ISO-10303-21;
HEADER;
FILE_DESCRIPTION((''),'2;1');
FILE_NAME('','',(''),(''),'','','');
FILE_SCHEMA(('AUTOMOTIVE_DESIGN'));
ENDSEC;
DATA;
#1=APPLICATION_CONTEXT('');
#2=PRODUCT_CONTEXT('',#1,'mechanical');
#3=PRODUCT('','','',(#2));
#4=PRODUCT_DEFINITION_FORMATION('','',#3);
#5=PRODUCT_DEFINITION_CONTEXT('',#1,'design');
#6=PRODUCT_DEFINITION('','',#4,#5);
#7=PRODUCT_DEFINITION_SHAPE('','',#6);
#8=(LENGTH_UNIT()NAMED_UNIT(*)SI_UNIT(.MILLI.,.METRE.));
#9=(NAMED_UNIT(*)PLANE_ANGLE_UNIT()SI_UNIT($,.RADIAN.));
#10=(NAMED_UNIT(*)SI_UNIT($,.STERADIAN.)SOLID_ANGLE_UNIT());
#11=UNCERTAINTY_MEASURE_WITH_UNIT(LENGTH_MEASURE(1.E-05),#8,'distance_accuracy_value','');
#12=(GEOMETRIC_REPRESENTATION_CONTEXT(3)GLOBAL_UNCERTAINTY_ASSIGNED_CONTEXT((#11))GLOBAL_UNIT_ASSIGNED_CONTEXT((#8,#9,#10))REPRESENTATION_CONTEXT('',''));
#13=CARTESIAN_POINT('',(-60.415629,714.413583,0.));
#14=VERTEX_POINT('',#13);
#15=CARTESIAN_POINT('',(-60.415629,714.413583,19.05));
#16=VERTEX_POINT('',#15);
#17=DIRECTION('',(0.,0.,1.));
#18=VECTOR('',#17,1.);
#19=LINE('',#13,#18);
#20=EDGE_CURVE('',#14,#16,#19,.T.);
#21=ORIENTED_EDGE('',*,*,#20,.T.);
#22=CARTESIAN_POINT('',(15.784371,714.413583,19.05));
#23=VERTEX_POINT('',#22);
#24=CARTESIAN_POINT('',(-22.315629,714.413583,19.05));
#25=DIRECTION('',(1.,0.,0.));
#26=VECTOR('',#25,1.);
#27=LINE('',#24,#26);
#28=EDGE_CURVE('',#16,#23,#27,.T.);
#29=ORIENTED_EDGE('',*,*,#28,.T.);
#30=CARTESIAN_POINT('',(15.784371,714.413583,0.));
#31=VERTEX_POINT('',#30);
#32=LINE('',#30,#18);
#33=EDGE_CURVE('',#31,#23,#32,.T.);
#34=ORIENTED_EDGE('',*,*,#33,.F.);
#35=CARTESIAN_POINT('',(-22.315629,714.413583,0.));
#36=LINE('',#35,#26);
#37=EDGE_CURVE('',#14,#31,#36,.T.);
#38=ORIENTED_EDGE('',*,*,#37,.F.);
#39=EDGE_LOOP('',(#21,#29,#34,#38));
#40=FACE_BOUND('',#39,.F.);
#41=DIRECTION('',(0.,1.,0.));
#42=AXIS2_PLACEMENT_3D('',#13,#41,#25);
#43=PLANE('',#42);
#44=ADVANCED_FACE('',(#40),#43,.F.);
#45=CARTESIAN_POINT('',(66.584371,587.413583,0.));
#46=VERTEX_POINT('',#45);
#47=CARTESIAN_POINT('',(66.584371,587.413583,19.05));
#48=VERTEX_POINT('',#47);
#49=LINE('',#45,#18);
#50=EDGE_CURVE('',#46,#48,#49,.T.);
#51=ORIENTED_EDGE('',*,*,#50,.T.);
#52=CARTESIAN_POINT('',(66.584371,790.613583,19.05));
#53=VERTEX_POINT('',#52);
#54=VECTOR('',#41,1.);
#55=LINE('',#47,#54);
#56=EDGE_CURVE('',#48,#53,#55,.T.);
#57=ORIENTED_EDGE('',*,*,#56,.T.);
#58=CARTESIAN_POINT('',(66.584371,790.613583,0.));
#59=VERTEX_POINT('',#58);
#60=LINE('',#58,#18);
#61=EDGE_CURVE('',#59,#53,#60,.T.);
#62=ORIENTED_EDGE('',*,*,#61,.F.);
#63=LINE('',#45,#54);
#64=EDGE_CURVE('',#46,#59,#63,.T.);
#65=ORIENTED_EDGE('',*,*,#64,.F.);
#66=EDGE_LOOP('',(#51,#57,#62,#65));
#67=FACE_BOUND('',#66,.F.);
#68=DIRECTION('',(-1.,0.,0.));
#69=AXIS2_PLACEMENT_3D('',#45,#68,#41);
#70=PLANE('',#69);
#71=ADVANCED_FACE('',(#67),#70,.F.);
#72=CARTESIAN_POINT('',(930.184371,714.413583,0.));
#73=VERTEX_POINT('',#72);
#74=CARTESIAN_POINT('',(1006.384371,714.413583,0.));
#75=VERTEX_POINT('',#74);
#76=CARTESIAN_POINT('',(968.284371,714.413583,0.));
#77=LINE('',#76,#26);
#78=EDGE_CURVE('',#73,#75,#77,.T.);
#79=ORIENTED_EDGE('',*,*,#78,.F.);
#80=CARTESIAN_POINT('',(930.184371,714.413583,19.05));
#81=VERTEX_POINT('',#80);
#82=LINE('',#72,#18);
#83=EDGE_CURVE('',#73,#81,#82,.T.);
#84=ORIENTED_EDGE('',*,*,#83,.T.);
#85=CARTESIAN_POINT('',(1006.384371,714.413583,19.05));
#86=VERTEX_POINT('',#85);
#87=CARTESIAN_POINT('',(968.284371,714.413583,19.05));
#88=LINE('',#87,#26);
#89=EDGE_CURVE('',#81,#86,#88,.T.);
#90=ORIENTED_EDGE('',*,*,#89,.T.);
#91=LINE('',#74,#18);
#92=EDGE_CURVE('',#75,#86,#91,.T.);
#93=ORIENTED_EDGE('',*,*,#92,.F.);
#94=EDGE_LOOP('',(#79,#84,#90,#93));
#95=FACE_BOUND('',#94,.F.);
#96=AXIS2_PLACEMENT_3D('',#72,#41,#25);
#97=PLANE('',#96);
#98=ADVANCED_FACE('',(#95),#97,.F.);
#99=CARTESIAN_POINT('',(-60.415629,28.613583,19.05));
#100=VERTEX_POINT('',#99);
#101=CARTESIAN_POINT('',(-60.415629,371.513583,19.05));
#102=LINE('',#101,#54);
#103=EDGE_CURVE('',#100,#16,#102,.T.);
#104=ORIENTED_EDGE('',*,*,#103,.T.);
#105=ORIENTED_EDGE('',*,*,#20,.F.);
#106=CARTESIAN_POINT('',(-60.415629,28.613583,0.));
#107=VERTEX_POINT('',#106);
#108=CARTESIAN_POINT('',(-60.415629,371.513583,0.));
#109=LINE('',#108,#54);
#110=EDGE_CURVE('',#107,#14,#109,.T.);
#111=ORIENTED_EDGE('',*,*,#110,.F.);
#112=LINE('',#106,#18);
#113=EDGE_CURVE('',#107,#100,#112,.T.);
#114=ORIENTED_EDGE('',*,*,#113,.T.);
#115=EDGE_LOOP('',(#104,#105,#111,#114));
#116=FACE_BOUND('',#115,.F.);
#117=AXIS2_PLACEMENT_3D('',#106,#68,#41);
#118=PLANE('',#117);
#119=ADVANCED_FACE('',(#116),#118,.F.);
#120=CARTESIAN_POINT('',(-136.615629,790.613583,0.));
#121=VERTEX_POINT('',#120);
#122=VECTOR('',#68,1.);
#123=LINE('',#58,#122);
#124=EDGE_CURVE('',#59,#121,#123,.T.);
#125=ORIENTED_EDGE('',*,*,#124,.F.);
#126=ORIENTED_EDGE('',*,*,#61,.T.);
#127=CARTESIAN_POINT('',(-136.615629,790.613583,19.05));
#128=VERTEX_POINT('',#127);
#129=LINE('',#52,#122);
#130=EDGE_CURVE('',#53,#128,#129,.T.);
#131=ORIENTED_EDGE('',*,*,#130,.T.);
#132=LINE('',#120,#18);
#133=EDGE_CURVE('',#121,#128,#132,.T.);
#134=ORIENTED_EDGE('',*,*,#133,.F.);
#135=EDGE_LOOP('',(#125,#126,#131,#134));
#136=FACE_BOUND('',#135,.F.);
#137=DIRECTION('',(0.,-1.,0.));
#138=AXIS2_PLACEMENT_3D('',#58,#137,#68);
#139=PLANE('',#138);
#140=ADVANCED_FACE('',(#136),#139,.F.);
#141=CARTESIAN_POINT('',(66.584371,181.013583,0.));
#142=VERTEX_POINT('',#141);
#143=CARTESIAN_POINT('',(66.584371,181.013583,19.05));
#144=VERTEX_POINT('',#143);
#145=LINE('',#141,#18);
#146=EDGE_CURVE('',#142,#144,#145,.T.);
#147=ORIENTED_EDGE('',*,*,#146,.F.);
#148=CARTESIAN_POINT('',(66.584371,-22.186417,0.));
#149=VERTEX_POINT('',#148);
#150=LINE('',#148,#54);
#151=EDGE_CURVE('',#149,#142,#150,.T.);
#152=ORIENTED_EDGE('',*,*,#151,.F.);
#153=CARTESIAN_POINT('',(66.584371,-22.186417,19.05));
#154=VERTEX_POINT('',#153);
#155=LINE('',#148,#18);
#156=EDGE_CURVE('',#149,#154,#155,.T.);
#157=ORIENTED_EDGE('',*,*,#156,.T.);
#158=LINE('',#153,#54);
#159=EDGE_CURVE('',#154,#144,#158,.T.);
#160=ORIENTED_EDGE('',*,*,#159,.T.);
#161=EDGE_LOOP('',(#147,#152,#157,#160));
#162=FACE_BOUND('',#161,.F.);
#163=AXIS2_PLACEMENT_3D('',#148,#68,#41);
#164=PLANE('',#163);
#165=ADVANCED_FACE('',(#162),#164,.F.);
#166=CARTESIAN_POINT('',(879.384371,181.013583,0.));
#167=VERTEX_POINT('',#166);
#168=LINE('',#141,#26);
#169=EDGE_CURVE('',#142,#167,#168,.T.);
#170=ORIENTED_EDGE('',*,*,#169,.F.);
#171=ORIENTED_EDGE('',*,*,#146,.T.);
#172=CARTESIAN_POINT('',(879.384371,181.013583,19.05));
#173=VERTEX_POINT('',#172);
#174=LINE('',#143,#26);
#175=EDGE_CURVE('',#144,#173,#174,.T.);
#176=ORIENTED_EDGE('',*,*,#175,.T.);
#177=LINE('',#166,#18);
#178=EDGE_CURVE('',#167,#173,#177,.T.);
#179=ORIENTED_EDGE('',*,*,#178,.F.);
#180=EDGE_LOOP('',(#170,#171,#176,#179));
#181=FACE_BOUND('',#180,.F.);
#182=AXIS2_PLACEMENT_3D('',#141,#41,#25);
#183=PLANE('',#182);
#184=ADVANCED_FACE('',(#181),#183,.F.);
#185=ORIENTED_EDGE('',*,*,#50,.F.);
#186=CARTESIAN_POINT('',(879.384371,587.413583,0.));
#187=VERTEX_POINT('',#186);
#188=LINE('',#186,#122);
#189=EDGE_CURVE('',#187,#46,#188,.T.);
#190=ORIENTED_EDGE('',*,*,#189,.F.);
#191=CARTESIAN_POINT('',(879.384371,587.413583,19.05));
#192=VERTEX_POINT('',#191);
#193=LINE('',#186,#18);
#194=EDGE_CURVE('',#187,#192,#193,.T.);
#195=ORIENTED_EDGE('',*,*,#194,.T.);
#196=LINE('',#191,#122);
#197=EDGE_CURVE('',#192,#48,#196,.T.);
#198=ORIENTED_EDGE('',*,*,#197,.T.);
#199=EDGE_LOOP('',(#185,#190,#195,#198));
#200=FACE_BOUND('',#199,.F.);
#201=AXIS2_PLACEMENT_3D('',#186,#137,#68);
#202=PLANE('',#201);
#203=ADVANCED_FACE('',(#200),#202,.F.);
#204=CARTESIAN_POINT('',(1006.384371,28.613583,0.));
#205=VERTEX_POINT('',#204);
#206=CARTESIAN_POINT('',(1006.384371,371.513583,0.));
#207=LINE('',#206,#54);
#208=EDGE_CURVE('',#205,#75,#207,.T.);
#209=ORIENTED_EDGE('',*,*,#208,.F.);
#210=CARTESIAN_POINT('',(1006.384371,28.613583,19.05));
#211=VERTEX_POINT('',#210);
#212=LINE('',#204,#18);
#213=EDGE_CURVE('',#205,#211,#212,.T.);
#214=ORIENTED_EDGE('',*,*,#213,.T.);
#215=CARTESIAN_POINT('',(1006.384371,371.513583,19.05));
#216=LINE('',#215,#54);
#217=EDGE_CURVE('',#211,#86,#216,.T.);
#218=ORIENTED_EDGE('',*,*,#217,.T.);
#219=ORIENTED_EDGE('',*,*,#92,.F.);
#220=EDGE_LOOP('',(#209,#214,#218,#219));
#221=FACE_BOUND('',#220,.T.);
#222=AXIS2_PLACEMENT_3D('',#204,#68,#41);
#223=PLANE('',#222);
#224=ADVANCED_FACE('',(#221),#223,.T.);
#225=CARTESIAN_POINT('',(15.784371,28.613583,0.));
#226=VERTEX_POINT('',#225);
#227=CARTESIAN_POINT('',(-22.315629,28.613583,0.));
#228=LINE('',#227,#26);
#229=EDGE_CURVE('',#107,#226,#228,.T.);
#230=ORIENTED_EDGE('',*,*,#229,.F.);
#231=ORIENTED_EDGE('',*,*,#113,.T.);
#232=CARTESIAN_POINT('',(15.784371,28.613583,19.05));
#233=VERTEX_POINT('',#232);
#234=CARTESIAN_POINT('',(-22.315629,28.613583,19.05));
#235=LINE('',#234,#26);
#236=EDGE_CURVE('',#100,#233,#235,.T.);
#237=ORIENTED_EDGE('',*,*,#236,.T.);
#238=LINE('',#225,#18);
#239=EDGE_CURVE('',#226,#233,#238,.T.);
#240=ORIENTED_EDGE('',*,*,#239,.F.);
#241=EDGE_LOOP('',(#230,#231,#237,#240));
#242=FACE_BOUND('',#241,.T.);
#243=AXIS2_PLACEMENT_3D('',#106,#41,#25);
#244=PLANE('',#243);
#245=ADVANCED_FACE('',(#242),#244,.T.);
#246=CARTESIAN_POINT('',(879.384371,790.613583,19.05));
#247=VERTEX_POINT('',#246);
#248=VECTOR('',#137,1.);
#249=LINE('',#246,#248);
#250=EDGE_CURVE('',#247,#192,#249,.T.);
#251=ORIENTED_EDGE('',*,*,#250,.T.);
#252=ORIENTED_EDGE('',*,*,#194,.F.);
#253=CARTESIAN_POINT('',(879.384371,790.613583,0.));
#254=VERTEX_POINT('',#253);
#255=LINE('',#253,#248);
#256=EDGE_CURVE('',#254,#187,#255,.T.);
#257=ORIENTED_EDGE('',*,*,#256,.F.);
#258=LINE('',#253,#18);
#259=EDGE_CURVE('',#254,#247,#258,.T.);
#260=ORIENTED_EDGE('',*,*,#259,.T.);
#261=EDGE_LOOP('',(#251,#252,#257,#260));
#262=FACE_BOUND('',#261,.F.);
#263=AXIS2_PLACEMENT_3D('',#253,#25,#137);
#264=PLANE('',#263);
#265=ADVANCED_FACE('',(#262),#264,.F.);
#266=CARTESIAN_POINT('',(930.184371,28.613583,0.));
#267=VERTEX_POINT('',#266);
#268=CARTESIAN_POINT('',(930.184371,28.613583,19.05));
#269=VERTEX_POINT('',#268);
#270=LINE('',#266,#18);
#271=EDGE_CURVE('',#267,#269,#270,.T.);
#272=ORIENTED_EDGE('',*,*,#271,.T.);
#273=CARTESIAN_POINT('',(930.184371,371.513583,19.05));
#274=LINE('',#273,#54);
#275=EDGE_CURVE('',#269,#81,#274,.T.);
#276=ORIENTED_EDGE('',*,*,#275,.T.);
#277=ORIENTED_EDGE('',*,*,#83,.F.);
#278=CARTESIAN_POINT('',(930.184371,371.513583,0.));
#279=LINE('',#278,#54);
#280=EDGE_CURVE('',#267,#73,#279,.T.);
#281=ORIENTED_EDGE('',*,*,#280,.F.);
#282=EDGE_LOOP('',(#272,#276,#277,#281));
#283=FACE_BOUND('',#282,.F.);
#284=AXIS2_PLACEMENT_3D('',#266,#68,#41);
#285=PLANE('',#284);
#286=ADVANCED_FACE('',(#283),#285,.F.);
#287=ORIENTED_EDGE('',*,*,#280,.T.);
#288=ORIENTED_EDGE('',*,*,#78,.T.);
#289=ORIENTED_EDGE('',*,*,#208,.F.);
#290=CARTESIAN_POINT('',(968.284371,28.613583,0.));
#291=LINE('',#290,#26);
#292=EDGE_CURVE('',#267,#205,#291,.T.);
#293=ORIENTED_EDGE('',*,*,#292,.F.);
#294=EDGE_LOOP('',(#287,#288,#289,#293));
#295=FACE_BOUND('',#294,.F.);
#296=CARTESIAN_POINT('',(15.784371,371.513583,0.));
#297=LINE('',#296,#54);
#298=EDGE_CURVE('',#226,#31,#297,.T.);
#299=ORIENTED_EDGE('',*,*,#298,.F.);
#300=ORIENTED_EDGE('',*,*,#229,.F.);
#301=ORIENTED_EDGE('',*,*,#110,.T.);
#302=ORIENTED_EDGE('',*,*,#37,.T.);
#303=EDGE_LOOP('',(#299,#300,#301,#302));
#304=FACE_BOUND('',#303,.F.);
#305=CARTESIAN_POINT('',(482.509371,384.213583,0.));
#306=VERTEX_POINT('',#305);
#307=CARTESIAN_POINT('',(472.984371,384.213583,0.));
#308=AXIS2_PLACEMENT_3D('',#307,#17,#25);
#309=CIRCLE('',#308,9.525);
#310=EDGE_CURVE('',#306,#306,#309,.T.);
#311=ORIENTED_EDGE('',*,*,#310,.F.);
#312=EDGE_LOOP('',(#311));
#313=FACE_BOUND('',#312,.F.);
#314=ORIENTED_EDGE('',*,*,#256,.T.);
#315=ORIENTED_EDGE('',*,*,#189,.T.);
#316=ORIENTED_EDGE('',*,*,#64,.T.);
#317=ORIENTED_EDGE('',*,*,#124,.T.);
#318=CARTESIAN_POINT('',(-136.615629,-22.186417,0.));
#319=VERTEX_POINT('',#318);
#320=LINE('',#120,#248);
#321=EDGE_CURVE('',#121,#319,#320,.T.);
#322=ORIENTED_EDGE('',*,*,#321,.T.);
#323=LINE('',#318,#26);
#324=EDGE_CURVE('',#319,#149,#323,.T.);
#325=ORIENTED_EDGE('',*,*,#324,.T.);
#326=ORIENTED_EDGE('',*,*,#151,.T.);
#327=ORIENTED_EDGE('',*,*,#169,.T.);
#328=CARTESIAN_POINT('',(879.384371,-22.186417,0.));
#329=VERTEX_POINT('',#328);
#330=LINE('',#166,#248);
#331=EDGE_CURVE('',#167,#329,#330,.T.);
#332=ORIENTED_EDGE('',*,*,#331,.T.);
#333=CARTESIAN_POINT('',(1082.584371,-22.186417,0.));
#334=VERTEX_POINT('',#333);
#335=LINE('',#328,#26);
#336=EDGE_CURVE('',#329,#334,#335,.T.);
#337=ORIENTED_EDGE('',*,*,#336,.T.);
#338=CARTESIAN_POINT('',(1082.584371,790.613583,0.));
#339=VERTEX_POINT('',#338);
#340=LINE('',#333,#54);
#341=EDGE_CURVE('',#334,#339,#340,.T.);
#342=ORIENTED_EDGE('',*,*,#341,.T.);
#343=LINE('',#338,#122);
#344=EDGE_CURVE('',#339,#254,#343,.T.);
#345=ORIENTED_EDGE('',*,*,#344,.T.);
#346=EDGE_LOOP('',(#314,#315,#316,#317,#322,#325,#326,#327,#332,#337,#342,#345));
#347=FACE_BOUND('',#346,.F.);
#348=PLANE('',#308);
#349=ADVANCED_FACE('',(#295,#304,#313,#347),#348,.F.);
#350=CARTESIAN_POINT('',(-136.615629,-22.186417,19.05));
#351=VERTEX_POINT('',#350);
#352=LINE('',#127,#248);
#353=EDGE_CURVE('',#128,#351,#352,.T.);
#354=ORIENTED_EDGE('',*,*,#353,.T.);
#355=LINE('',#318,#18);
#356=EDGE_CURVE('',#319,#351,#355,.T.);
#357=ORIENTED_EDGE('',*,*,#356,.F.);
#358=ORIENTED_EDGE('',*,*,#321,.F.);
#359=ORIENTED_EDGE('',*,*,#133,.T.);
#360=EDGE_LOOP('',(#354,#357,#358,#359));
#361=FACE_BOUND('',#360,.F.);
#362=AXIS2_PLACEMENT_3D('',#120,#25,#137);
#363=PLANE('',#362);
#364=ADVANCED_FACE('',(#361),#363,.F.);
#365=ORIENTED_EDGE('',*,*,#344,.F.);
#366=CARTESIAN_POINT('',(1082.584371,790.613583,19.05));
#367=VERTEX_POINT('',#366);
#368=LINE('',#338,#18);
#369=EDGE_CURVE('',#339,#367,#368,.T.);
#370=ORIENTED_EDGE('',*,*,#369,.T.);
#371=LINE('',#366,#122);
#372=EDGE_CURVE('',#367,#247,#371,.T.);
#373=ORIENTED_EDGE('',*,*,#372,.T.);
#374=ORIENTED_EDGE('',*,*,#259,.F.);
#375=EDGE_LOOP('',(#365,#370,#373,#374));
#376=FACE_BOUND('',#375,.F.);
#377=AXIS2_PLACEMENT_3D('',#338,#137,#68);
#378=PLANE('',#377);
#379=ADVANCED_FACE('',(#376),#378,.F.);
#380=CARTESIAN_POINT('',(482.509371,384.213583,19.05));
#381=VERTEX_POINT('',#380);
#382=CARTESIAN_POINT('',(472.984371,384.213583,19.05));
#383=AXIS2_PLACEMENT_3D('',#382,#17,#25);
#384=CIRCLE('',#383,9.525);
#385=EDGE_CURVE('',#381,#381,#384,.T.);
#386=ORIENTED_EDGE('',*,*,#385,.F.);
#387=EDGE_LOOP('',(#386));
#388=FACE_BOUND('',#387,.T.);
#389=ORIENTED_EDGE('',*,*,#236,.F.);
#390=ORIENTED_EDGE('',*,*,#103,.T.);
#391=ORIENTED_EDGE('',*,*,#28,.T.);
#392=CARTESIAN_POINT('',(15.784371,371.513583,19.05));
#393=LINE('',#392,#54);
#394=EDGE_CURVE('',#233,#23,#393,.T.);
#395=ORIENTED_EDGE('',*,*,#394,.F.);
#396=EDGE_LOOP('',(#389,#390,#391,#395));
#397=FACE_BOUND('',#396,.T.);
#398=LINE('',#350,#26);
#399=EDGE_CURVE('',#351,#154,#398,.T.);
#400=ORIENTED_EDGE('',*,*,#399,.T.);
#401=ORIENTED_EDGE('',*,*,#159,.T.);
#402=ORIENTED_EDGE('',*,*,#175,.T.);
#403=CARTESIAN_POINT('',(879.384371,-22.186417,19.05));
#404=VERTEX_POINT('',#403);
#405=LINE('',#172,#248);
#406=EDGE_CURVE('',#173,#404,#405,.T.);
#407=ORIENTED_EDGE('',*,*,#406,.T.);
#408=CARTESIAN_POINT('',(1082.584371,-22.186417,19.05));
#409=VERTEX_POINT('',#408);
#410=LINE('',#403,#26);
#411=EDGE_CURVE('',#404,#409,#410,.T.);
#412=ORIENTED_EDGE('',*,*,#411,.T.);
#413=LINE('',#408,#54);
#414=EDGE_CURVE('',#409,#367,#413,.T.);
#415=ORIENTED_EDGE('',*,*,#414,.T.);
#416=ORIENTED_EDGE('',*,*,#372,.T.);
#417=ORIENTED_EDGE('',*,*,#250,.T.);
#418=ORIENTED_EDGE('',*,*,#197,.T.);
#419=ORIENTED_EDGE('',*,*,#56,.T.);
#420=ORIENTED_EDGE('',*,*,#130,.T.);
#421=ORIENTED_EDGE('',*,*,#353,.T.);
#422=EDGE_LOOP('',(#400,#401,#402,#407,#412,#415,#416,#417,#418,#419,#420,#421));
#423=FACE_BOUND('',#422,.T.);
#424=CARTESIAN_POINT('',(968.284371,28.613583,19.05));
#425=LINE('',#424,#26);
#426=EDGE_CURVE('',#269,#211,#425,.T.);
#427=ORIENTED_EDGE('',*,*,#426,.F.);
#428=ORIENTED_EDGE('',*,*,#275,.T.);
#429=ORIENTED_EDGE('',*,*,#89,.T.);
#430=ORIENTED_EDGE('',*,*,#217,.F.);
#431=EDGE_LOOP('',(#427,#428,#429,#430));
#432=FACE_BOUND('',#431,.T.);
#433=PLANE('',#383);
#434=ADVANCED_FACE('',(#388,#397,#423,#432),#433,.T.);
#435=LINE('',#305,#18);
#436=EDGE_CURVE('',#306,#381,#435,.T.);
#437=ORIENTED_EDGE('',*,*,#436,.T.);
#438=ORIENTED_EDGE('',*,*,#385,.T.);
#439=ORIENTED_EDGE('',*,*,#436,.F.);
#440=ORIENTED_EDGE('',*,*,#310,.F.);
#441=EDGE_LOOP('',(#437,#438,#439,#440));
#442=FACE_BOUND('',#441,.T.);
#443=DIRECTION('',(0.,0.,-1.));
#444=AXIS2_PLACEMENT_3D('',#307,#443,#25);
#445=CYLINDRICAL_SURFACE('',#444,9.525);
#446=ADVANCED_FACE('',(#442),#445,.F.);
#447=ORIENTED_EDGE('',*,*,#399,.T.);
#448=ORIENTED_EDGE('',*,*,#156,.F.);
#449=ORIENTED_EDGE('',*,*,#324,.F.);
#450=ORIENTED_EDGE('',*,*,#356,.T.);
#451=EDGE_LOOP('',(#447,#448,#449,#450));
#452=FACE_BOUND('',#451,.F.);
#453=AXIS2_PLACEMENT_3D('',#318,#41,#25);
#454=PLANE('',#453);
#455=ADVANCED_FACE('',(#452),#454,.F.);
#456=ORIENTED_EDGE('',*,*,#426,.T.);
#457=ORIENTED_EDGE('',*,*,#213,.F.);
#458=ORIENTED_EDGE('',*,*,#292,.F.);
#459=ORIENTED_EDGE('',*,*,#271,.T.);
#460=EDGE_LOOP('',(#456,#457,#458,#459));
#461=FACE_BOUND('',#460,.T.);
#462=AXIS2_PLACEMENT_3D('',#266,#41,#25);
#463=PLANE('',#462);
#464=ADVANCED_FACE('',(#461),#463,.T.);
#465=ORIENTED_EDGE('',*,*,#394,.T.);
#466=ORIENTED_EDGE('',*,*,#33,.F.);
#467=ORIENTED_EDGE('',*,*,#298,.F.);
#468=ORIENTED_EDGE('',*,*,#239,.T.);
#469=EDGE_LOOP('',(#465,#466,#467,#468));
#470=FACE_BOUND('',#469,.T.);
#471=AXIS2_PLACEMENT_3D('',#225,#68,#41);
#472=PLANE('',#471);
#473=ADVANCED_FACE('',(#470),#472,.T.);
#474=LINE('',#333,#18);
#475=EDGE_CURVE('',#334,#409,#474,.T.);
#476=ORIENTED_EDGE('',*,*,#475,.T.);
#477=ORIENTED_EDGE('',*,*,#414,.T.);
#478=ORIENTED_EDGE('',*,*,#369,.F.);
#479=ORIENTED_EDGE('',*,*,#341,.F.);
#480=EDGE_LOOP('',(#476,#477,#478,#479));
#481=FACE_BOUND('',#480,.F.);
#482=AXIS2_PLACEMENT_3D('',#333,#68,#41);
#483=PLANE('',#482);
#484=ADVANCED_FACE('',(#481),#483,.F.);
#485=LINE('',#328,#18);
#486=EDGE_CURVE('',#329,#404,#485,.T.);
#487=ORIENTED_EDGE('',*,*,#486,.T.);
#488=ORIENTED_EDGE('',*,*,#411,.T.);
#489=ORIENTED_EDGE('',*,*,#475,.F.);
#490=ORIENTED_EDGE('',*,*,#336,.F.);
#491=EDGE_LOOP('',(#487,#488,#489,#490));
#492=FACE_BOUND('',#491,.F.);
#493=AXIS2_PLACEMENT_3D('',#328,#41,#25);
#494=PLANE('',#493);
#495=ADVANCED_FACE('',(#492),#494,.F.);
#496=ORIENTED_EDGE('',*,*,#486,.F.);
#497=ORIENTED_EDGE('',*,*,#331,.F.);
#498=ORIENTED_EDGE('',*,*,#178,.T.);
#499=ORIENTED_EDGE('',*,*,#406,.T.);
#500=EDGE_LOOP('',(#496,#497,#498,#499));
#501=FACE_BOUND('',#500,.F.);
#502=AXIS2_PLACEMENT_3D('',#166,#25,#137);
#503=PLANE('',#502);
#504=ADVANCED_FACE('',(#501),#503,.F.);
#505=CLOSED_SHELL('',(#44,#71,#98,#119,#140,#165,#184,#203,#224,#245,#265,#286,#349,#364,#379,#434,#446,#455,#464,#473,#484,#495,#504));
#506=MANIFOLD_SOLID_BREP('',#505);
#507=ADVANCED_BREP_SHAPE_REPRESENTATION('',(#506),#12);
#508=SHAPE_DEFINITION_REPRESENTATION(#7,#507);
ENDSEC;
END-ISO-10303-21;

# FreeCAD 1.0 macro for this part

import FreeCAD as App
import Part
import Sketcher
Q = App.Units.Quantity


def add_polygon(sketch, points):
    """Adds a closed chain of lines whose ends are joined by coincident constraints."""
    first, n = sketch.GeometryCount, len(points)
    for a, b in zip(points, points[1:] + points[:1]):
        sketch.addGeometry(Part.LineSegment(App.Vector(*a, 0), App.Vector(*b, 0)), False)
    for i in range(n):
        sketch.addConstraint(Sketcher.Constraint("Coincident", first + i, 2, first + (i + 1) % n, 1))

doc = App.newDocument("Part")
body = doc.addObject("PartDesign::Body", "Body")

sketch1 = body.newObject("Sketcher::SketchObject", "Sketch")
sketch1.AttachmentSupport = (doc.getObject("XY_Plane"), [""])
sketch1.MapMode = "FlatFace"
add_polygon(sketch1, [(-136.615629, 790.613583), (-136.615629, -22.186417), (66.584371, -22.186417), (66.584371, 181.013583), (879.384371, 181.013583), (879.384371, -22.186417), (1082.584371, -22.186417), (1082.584371, 790.613583), (879.384371, 790.613583), (879.384371, 587.413583), (66.584371, 587.413583), (66.584371, 790.613583)])
add_polygon(sketch1, [(15.784371, 28.613583), (-60.415629, 28.613583), (-60.415629, 714.413583), (15.784371, 714.413583)])
sketch1.addGeometry(Part.Circle(App.Vector(472.984371, 384.213583, 0), App.Vector(0, 0, 1), 9.525), False)
add_polygon(sketch1, [(1006.384371, 28.613583), (930.184371, 28.613583), (930.184371, 714.413583), (1006.384371, 714.413583)])
sketch1.addConstraint([
    Sketcher.Constraint("Vertical", 0),
    Sketcher.Constraint("Horizontal", 1),
    Sketcher.Constraint("Vertical", 2),
    Sketcher.Constraint("Horizontal", 3),
    Sketcher.Constraint("Vertical", 4),
    Sketcher.Constraint("Horizontal", 5),
    Sketcher.Constraint("Vertical", 6),
    Sketcher.Constraint("Horizontal", 7),
    Sketcher.Constraint("Vertical", 8),
    Sketcher.Constraint("Horizontal", 9),
    Sketcher.Constraint("Vertical", 10),
    Sketcher.Constraint("Horizontal", 11),
    Sketcher.Constraint("Horizontal", 12),
    Sketcher.Constraint("Vertical", 13),
    Sketcher.Constraint("Horizontal", 14),
    Sketcher.Constraint("Vertical", 15),
    Sketcher.Constraint("Horizontal", 17),
    Sketcher.Constraint("Vertical", 18),
    Sketcher.Constraint("Horizontal", 19),
    Sketcher.Constraint("Vertical", 20),
    Sketcher.Constraint("Horizontal", 1, 2, 4, 2),
    Sketcher.Constraint("Horizontal", 7, 2, 10, 2),
    Sketcher.Constraint("Horizontal", 15, 2, 17, 2),
    Sketcher.Constraint("Horizontal", 14, 2, 18, 2),
    Sketcher.Constraint("Vertical", 4, 2, 7, 2),
    Sketcher.Constraint("Vertical", 2, 2, 9, 2),
    Sketcher.Constraint("Equal", 1, 5),
    Sketcher.Constraint("Equal", 14, 17),
    Sketcher.Constraint("Equal", 9, 0),
    Sketcher.Constraint("Equal", 11, 2),
    Sketcher.Constraint("Equal", 4, 8),
    Sketcher.Constraint("Diameter", 16, Q("0.75 in")),
    Sketcher.Constraint("DistanceX", 1, 1, 1, 2, Q("8 in")),
    Sketcher.Constraint("DistanceX", 3, 1, 3, 2, Q("32 in")),
    Sketcher.Constraint("DistanceX", 12, 2, 12, 1, Q("3 in")),
    Sketcher.Constraint("DistanceY", 13, 1, 13, 2, Q("27 in")),
    Sketcher.Constraint("DistanceX", 0, 2, 16, 3, Q("24 in")),
    Sketcher.Constraint("DistanceY", 0, 2, 16, 3, Q("16 in")),
    Sketcher.Constraint("DistanceX", 0, 2, 12, 2, Q("3 in")),
    Sketcher.Constraint("DistanceY", 0, 2, 12, 2, Q("2 in")),
    Sketcher.Constraint("DistanceX", 4, 2, 17, 2, Q("2 in")),
    Sketcher.Constraint("DistanceX", -1, 1, 16, 3, 472.984371),
    Sketcher.Constraint("DistanceY", -1, 1, 16, 3, 384.213583),
])
pad1 = body.newObject("PartDesign::Pad", "Pad")
pad1.Profile = sketch1
pad1.Length = Q("0.75 in")

doc.recompute()
